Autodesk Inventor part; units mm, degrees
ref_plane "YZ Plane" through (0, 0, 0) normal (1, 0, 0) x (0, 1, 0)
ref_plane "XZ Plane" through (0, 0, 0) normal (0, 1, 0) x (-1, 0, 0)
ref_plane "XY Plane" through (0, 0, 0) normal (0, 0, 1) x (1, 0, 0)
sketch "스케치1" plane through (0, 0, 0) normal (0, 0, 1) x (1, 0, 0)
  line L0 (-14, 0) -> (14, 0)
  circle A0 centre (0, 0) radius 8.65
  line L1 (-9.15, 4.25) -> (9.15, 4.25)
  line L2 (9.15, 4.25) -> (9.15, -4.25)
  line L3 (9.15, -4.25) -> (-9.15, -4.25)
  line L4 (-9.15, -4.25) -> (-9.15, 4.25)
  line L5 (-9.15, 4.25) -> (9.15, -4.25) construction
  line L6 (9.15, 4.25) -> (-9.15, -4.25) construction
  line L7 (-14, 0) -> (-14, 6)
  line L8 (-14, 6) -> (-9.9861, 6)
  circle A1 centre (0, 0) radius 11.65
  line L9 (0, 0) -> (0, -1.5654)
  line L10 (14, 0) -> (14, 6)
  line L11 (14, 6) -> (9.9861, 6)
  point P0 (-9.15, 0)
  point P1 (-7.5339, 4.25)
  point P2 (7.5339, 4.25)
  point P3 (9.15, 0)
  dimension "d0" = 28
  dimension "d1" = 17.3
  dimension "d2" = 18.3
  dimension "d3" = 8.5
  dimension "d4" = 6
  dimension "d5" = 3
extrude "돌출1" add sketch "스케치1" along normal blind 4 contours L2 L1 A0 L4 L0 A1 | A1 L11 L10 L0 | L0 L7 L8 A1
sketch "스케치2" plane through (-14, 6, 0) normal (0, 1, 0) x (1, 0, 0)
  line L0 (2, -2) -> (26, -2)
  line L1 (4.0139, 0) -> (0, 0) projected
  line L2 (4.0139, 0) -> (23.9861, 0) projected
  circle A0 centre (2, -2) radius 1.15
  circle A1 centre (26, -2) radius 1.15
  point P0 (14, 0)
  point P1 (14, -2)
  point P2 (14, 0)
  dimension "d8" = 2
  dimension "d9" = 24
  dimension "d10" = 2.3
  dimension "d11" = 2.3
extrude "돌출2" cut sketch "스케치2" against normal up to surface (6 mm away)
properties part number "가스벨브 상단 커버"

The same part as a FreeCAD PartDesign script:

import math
import FreeCAD as App
import Part
import Sketcher

doc = App.newDocument("Part")
body = doc.addObject("PartDesign::Body", "Body")

# Sketch on XY plane
sketch1 = body.newObject("Sketcher::SketchObject", "Sketch")
sketch1.AttachmentSupport = (doc.getObject("XY_Plane"), [""])
sketch1.MapMode = "FlatFace"
sketch1.addGeometry([
    Part.LineSegment(App.Vector(9.15, 4.25, 0), App.Vector(9.15, 0, 0)),  # 0
    Part.LineSegment(App.Vector(9.15, 0, 0), App.Vector(14, 0, 0)),  # 1
    Part.LineSegment(App.Vector(14, 0, 0), App.Vector(14, 6, 0)),  # 2
    Part.LineSegment(App.Vector(14, 6, 0), App.Vector(9.9861, 6, 0)),  # 3
    Part.ArcOfCircle(Part.Circle(App.Vector(0, 0, 0), App.Vector(0, 0, 1), 11.65), math.radians(30.998928), math.radians(149.001072)),  # 4
    Part.LineSegment(App.Vector(-9.9861, 6, 0), App.Vector(-14, 6, 0)),  # 5
    Part.LineSegment(App.Vector(-14, 6, 0), App.Vector(-14, 0, 0)),  # 6
    Part.LineSegment(App.Vector(-14, 0, 0), App.Vector(-9.15, 0, 0)),  # 7
    Part.LineSegment(App.Vector(-9.15, 0, 0), App.Vector(-9.15, 4.25, 0)),  # 8
    Part.LineSegment(App.Vector(-9.15, 4.25, 0), App.Vector(-7.533923, 4.25, 0)),  # 9
    Part.ArcOfCircle(Part.Circle(App.Vector(0, 0, 0), App.Vector(0, 0, 1), 8.65), math.radians(29.428002), math.radians(150.571998)),  # 10
    Part.LineSegment(App.Vector(7.533923, 4.25, 0), App.Vector(9.15, 4.25, 0)),  # 11
], False)
sketch1.addConstraint([
    Sketcher.Constraint("Coincident", 0, 2, 1, 1),
    Sketcher.Constraint("Coincident", 1, 2, 2, 1),
    Sketcher.Constraint("Coincident", 2, 2, 3, 1),
    Sketcher.Constraint("Coincident", 3, 2, 4, 1),
    Sketcher.Constraint("Coincident", 4, 2, 5, 1),
    Sketcher.Constraint("Coincident", 5, 2, 6, 1),
    Sketcher.Constraint("Coincident", 6, 2, 7, 1),
    Sketcher.Constraint("Coincident", 7, 2, 8, 1),
    Sketcher.Constraint("Coincident", 8, 2, 9, 1),
    Sketcher.Constraint("Coincident", 9, 2, 10, 2),
    Sketcher.Constraint("Coincident", 10, 1, 11, 1),
    Sketcher.Constraint("Coincident", 11, 2, 0, 1),
    Sketcher.Constraint("Vertical", 0),
    Sketcher.Constraint("Horizontal", 1),
    Sketcher.Constraint("Vertical", 2),
    Sketcher.Constraint("Horizontal", 3),
    Sketcher.Constraint("Horizontal", 5),
    Sketcher.Constraint("Vertical", 6),
    Sketcher.Constraint("Horizontal", 7),
    Sketcher.Constraint("Vertical", 8),
    Sketcher.Constraint("Horizontal", 9),
    Sketcher.Constraint("Horizontal", 11),
    Sketcher.Constraint("Coincident", 4, 3, -1, 1),
    Sketcher.Constraint("Coincident", 10, 3, -1, 1),
    Sketcher.Constraint("Symmetric", 1, 2, 6, 2, -1, 1),
    Sketcher.Constraint("Symmetric", 0, 2, 7, 2, -2),
    Sketcher.Constraint("Horizontal", 3, 2, 4, 2),
    Sketcher.Constraint("Horizontal", 9, 2, 10, 1),
    Sketcher.Constraint("DistanceY", 2, 1, 2, 2, 6.0),
    Sketcher.Constraint("Radius", 10, 8.65),
    Sketcher.Constraint("Radius", 4, 11.65),
    Sketcher.Constraint("DistanceX", -1, 1, 1, 2, 14.0),
    Sketcher.Constraint("DistanceX", 1, 1, 1, 2, 4.85),
    Sketcher.Constraint("DistanceY", 0, 2, 0, 1, 4.25),
])
pad1 = body.newObject("PartDesign::Pad", "Pad")
pad1.Profile = sketch1
pad1.Length = 4

# Sketch on XZ plane
sketch2 = body.newObject("Sketcher::SketchObject", "Sketch001")
sketch2.AttachmentSupport = (doc.getObject("XZ_Plane"), [""])
sketch2.MapMode = "FlatFace"
sketch2.AttachmentOffset = App.Placement(App.Vector(0, 0, -6), App.Rotation())
sketch2.addGeometry([
    Part.Circle(App.Vector(12, 2, 0), App.Vector(0, 0, 1), 1.15),
    Part.Circle(App.Vector(-12, 2, 0), App.Vector(0, 0, 1), 1.15),
], False)
sketch2.addConstraint([
    Sketcher.Constraint("Equal", 0, 1),
    Sketcher.Constraint("Symmetric", 0, 3, 1, 3, -2),
    Sketcher.Constraint("Diameter", 0, 2.3),
    Sketcher.Constraint("DistanceY", -1, 1, 0, 3, 2.0),
    Sketcher.Constraint("DistanceX", 1, 3, 0, 3, 24.0),
])
pocket1 = body.newObject("PartDesign::Pocket", "Pocket")
pocket1.Profile = sketch2
pocket1.Length = 6
pocket1.Reversed = True

doc.recompute()
